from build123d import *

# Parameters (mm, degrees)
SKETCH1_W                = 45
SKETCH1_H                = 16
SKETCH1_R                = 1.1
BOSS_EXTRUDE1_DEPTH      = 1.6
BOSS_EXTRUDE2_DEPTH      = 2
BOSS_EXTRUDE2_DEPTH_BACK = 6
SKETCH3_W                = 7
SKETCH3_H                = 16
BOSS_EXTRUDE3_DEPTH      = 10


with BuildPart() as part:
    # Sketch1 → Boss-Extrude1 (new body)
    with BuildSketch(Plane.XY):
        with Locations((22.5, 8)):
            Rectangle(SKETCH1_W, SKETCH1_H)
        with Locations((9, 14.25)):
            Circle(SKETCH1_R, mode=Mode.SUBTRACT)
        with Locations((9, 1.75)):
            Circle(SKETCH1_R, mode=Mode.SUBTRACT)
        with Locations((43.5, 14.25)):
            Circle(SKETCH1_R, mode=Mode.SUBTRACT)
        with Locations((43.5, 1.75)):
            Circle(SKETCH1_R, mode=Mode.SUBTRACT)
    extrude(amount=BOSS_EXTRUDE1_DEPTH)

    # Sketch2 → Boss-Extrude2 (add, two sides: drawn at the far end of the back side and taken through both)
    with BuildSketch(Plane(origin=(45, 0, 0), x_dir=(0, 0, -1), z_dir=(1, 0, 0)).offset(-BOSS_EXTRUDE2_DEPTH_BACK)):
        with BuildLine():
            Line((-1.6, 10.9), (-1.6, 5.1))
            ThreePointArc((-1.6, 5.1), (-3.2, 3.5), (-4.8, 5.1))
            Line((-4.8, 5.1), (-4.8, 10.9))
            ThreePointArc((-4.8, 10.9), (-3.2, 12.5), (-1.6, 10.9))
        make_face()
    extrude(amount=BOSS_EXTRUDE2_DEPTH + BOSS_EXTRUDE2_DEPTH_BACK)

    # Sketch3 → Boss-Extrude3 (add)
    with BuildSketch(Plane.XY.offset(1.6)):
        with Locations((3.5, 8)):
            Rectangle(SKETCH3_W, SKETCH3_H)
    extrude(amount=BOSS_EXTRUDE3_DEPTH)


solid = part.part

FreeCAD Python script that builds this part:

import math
import FreeCAD as App
import Part
import Sketcher
Q = App.Units.Quantity

doc = App.newDocument("Part")
body = doc.addObject("PartDesign::Body", "Body")

# Sketch on XY plane
sketch1 = doc.addObject("Sketcher::SketchObject", "Sketch")
body.addObject(sketch1)
sketch1.AttachmentSupport = (doc.XY_Plane, [""])
sketch1.MapMode = "FlatFace"
sketch1.addGeometry([
    Part.LineSegment(App.Vector(0, 16, 0), App.Vector(0, 0, 0)),  # 0
    Part.LineSegment(App.Vector(0, 0, 0), App.Vector(45, 0, 0)),  # 1
    Part.LineSegment(App.Vector(45, 0, 0), App.Vector(45, 16, 0)),  # 2
    Part.LineSegment(App.Vector(45, 16, 0), App.Vector(0, 16, 0)),  # 3
    Part.Circle(App.Vector(9, 1.8, 0), App.Vector(0, 0, 1), 1.1),  # 4
    Part.Circle(App.Vector(43.5, 1.8, 0), App.Vector(0, 0, 1), 1.1),  # 5
    Part.Circle(App.Vector(9, 14.2, 0), App.Vector(0, 0, 1), 1.1),  # 6
    Part.Circle(App.Vector(43.5, 14.2, 0), App.Vector(0, 0, 1), 1.1),  # 7
], False)
sketch1.addConstraint([
    Sketcher.Constraint("Coincident", 0, 2, 1, 1),
    Sketcher.Constraint("Coincident", 1, 2, 2, 1),
    Sketcher.Constraint("Coincident", 2, 2, 3, 1),
    Sketcher.Constraint("Coincident", 3, 2, 0, 1),
    Sketcher.Constraint("Vertical", 0),
    Sketcher.Constraint("Horizontal", 1),
    Sketcher.Constraint("Vertical", 2),
    Sketcher.Constraint("Horizontal", 3),
    Sketcher.Constraint("Coincident", 0, 2, -1, 1),
    Sketcher.Constraint("Equal", 4, 5),
    Sketcher.Constraint("Equal", 5, 6),
    Sketcher.Constraint("Equal", 6, 7),
    Sketcher.Constraint("Horizontal", 4, 3, 5, 3),
    Sketcher.Constraint("Horizontal", 6, 3, 7, 3),
    Sketcher.Constraint("Vertical", 4, 3, 6, 3),
    Sketcher.Constraint("Vertical", 5, 3, 7, 3),
    Sketcher.Constraint("Diameter", 4, Q("2.2 mm")),
    Sketcher.Constraint("DistanceX", 1, 1, 1, 2, Q("45 mm")),
    Sketcher.Constraint("DistanceY", 0, 2, 0, 1, Q("16 mm")),
    Sketcher.Constraint("DistanceX", -1, 1, 4, 3, Q("9 mm")),
    Sketcher.Constraint("DistanceX", -1, 1, 5, 3, Q("43.5 mm")),
    Sketcher.Constraint("DistanceY", 4, 3, 6, 3, Q("12.5 mm")),
    Sketcher.Constraint("DistanceY", -1, 1, 4, 3, Q("1.75 mm")),
])
pad1 = doc.addObject("PartDesign::Pad", "Pad")
body.addObject(pad1)
pad1.Profile = sketch1
pad1.Length = 1.6

# Sketch on YZ plane
sketch2 = doc.addObject("Sketcher::SketchObject", "Sketch001")
body.addObject(sketch2)
sketch2.AttachmentSupport = (doc.YZ_Plane, [""])
sketch2.MapMode = "FlatFace"
sketch2.AttachmentOffset = App.Placement(App.Vector(0, 0, 45), App.Rotation())
sketch2.addGeometry([
    Part.LineSegment(App.Vector(5.1, 1.6, 0), App.Vector(10.9, 1.6, 0)),
    Part.ArcOfCircle(Part.Circle(App.Vector(10.9, 3.2, 0), App.Vector(0, 0, 1), 1.6), math.radians(-90), math.radians(90)),
    Part.LineSegment(App.Vector(10.9, 4.8, 0), App.Vector(5.1, 4.8, 0)),
    Part.ArcOfCircle(Part.Circle(App.Vector(5.1, 3.2, 0), App.Vector(0, 0, 1), 1.6), math.radians(90), math.radians(270)),
], False)
sketch2.addConstraint([
    Sketcher.Constraint("Tangent", 0, 2, 1, 1),
    Sketcher.Constraint("Tangent", 1, 2, 2, 1),
    Sketcher.Constraint("Tangent", 2, 2, 3, 1),
    Sketcher.Constraint("Tangent", 3, 2, 0, 1),
    Sketcher.Constraint("Horizontal", 0),
    Sketcher.Constraint("Horizontal", 2),
    Sketcher.Constraint("Radius", 1, Q("1.6 mm")),
    Sketcher.Constraint("DistanceX", 0, 1, 0, 2, Q("5.8 mm")),
    Sketcher.Constraint("DistanceX", -1, 1, 1, 3, Q("10.9 mm")),
    Sketcher.Constraint("DistanceY", -1, 1, 1, 3, Q("3.2 mm")),
])
pad2 = doc.addObject("PartDesign::Pad", "Pad001")
body.addObject(pad2)
pad2.Profile = sketch2
pad2.Type = "TwoLengths"
pad2.Length = 2
pad2.Length2 = 6

# Sketch on XY plane
sketch3 = doc.addObject("Sketcher::SketchObject", "Sketch002")
body.addObject(sketch3)
sketch3.AttachmentSupport = (doc.XY_Plane, [""])
sketch3.MapMode = "FlatFace"
sketch3.AttachmentOffset = App.Placement(App.Vector(0, 0, 1.6), App.Rotation())
sketch3.addGeometry([
    Part.LineSegment(App.Vector(0, 16, 0), App.Vector(0, 0, 0)),
    Part.LineSegment(App.Vector(0, 0, 0), App.Vector(7, 0, 0)),
    Part.LineSegment(App.Vector(7, 0, 0), App.Vector(7, 16, 0)),
    Part.LineSegment(App.Vector(7, 16, 0), App.Vector(0, 16, 0)),
], False)
sketch3.addConstraint([
    Sketcher.Constraint("Coincident", 0, 2, 1, 1),
    Sketcher.Constraint("Coincident", 1, 2, 2, 1),
    Sketcher.Constraint("Coincident", 2, 2, 3, 1),
    Sketcher.Constraint("Coincident", 3, 2, 0, 1),
    Sketcher.Constraint("Vertical", 0),
    Sketcher.Constraint("Horizontal", 1),
    Sketcher.Constraint("Vertical", 2),
    Sketcher.Constraint("Horizontal", 3),
    Sketcher.Constraint("Coincident", 0, 2, -1, 1),
    Sketcher.Constraint("DistanceX", 1, 1, 1, 2, Q("7 mm")),
    Sketcher.Constraint("DistanceY", 0, 2, 0, 1, Q("16 mm")),
])
pad3 = doc.addObject("PartDesign::Pad", "Pad002")
body.addObject(pad3)
pad3.Profile = sketch3
pad3.Length = 10

doc.recompute()
